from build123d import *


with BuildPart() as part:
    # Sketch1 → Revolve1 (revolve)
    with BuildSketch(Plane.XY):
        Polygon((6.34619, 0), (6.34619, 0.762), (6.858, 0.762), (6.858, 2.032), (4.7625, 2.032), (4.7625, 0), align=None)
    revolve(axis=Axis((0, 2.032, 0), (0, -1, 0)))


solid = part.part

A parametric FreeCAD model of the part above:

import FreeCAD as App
import Part
import Sketcher

V = App.Vector
Q = App.Units.Quantity

doc = App.newDocument("Part")
body = doc.addObject("PartDesign::Body", "Body")

sketch1 = doc.addObject("Sketcher::SketchObject", "Sketch")
body.addObject(sketch1)
sketch1.AttachmentSupport = (doc.XY_Plane, [""])
sketch1.MapMode = "FlatFace"
sketch1.addGeometry(Part.LineSegment(V(6.3, 0, 0), V(6.3, 0.8, 0)), False)
sketch1.addGeometry(Part.LineSegment(V(6.3, 0.8, 0), V(6.9, 0.8, 0)), False)
sketch1.addGeometry(Part.LineSegment(V(6.9, 0.8, 0), V(6.9, 2, 0)), False)
sketch1.addGeometry(Part.LineSegment(V(6.9, 2, 0), V(4.8, 2, 0)), False)
sketch1.addGeometry(Part.LineSegment(V(4.8, 2, 0), V(4.8, 0, 0)), False)
sketch1.addGeometry(Part.LineSegment(V(4.8, 0, 0), V(6.3, 0, 0)), False)
sketch1.addConstraint(Sketcher.Constraint("Coincident", 0, 2, 1, 1))
sketch1.addConstraint(Sketcher.Constraint("Coincident", 1, 2, 2, 1))
sketch1.addConstraint(Sketcher.Constraint("Coincident", 2, 2, 3, 1))
sketch1.addConstraint(Sketcher.Constraint("Coincident", 3, 2, 4, 1))
sketch1.addConstraint(Sketcher.Constraint("Coincident", 4, 2, 5, 1))
sketch1.addConstraint(Sketcher.Constraint("Coincident", 5, 2, 0, 1))
sketch1.addConstraint(Sketcher.Constraint("Vertical", 0))
sketch1.addConstraint(Sketcher.Constraint("Horizontal", 1))
sketch1.addConstraint(Sketcher.Constraint("Vertical", 2))
sketch1.addConstraint(Sketcher.Constraint("Horizontal", 3))
sketch1.addConstraint(Sketcher.Constraint("Vertical", 4))
sketch1.addConstraint(Sketcher.Constraint("Horizontal", 5))
sketch1.addConstraint(Sketcher.Constraint("PointOnObject", 4, 2, -1))
sketch1.addConstraint(Sketcher.Constraint("DistanceY", 0, 1, 0, 2, Q("0.03 in")))
sketch1.addConstraint(Sketcher.Constraint("DistanceY", 2, 1, 2, 2, Q("0.05 in")))
sketch1.addConstraint(Sketcher.Constraint("DistanceX", -1, 1, 1, 2, Q("0.27 in")))
sketch1.addConstraint(Sketcher.Constraint("DistanceX", 3, 2, 3, 1, Q("0.0825 in")))
sketch1.addConstraint(Sketcher.Constraint("DistanceX", 1, 1, 1, 2, Q("0.51181 mm")))
revolution = doc.addObject("PartDesign::Revolution", "Revolution")
body.addObject(revolution)
revolution.Profile = sketch1
revolution.ReferenceAxis = (sketch1, ["V_Axis"])
revolution.Angle = 360

doc.recompute()
